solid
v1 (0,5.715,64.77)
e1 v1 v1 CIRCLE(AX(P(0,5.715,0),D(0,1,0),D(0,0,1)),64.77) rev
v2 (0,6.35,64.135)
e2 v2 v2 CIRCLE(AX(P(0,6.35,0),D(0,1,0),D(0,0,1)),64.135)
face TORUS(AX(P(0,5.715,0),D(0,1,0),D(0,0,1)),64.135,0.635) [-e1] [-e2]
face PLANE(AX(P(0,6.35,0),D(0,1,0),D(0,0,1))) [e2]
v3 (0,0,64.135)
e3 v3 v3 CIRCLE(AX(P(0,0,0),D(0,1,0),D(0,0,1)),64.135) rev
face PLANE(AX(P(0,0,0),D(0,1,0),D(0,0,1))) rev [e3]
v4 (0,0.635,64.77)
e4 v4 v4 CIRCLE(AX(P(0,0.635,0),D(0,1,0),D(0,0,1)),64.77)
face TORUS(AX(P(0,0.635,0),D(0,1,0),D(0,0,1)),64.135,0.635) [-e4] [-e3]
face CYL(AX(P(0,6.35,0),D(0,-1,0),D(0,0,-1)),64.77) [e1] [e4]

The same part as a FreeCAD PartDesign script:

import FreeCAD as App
import Part
import Sketcher
from FreeCAD import Vector
Q = App.Units.Quantity


def edges_at(feature, points):
    """Names of the edges that pass closest to the given points."""
    edges = feature.Shape.Edges
    near = lambda p: min(range(len(edges)), key=lambda i: edges[i].distToShape(Part.Vertex(*p))[0])
    return sorted({f"Edge{near(p) + 1}" for p in points})

doc = App.newDocument("Part")
body = doc.addObject("PartDesign::Body", "Body")

# Sketch on XZ plane
sketch1 = doc.addObject("Sketcher::SketchObject", "Sketch")
body.addObject(sketch1)
sketch1.AttachmentSupport = (doc.XZ_Plane, [""])
sketch1.MapMode = "FlatFace"
sketch1.addGeometry(Part.Circle(Vector(0, 0, 0), Vector(0, 0, 1), 65), False)
sketch1.addConstraint([
    Sketcher.Constraint("Coincident", 0, 3, -1, 1),
    Sketcher.Constraint("Diameter", 0, Q("5.1 in")),
])
pad1 = doc.addObject("PartDesign::Pad", "Pad")
body.addObject(pad1)
pad1.Profile = sketch1
pad1.Length = Q("0.25 in")
pad1.Reversed = True
doc.recompute()

fillet = doc.addObject("PartDesign::Fillet", "Fillet")
body.addObject(fillet)
fillet.Base = (pad1, edges_at(pad1, [(0, 0, -64.77), (0, 6.35, -64.77)]))
fillet.Radius = Q("0.025 in")

doc.recompute()
